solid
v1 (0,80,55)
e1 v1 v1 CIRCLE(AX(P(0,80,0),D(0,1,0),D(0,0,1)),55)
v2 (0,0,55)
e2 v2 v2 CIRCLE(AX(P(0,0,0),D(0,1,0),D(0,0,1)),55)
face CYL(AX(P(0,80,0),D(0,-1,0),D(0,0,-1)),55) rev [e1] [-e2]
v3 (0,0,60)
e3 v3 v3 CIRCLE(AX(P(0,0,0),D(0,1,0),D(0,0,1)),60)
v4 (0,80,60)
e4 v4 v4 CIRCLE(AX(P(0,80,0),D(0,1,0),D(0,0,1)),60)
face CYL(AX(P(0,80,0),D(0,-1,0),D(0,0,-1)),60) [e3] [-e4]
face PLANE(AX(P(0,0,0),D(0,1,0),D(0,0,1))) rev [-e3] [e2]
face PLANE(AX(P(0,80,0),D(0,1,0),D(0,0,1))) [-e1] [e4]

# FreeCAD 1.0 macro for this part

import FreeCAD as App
import Part
import Sketcher

doc = App.newDocument("Part")
body = doc.addObject("PartDesign::Body", "Body")

# Sketch on XZ plane
sketch1 = body.newObject("Sketcher::SketchObject", "Sketch")
sketch1.AttachmentSupport = (doc.getObject("XZ_Plane"), [""])
sketch1.MapMode = "FlatFace"
sketch1.addGeometry([
    Part.Circle(App.Vector(0, 0, 0), App.Vector(0, 0, 1), 60),
    Part.Circle(App.Vector(0, 0, 0), App.Vector(0, 0, 1), 55),
], False)
sketch1.addConstraint([
    Sketcher.Constraint("Coincident", 0, 3, -1, 1),
    Sketcher.Constraint("Coincident", 1, 3, -1, 1),
    Sketcher.Constraint("Diameter", 0, 120.0),
    Sketcher.Constraint("Diameter", 1, 110.0),
])
pad1 = body.newObject("PartDesign::Pad", "Pad")
pad1.Profile = sketch1
pad1.Length = 80
pad1.Reversed = True

doc.recompute()
